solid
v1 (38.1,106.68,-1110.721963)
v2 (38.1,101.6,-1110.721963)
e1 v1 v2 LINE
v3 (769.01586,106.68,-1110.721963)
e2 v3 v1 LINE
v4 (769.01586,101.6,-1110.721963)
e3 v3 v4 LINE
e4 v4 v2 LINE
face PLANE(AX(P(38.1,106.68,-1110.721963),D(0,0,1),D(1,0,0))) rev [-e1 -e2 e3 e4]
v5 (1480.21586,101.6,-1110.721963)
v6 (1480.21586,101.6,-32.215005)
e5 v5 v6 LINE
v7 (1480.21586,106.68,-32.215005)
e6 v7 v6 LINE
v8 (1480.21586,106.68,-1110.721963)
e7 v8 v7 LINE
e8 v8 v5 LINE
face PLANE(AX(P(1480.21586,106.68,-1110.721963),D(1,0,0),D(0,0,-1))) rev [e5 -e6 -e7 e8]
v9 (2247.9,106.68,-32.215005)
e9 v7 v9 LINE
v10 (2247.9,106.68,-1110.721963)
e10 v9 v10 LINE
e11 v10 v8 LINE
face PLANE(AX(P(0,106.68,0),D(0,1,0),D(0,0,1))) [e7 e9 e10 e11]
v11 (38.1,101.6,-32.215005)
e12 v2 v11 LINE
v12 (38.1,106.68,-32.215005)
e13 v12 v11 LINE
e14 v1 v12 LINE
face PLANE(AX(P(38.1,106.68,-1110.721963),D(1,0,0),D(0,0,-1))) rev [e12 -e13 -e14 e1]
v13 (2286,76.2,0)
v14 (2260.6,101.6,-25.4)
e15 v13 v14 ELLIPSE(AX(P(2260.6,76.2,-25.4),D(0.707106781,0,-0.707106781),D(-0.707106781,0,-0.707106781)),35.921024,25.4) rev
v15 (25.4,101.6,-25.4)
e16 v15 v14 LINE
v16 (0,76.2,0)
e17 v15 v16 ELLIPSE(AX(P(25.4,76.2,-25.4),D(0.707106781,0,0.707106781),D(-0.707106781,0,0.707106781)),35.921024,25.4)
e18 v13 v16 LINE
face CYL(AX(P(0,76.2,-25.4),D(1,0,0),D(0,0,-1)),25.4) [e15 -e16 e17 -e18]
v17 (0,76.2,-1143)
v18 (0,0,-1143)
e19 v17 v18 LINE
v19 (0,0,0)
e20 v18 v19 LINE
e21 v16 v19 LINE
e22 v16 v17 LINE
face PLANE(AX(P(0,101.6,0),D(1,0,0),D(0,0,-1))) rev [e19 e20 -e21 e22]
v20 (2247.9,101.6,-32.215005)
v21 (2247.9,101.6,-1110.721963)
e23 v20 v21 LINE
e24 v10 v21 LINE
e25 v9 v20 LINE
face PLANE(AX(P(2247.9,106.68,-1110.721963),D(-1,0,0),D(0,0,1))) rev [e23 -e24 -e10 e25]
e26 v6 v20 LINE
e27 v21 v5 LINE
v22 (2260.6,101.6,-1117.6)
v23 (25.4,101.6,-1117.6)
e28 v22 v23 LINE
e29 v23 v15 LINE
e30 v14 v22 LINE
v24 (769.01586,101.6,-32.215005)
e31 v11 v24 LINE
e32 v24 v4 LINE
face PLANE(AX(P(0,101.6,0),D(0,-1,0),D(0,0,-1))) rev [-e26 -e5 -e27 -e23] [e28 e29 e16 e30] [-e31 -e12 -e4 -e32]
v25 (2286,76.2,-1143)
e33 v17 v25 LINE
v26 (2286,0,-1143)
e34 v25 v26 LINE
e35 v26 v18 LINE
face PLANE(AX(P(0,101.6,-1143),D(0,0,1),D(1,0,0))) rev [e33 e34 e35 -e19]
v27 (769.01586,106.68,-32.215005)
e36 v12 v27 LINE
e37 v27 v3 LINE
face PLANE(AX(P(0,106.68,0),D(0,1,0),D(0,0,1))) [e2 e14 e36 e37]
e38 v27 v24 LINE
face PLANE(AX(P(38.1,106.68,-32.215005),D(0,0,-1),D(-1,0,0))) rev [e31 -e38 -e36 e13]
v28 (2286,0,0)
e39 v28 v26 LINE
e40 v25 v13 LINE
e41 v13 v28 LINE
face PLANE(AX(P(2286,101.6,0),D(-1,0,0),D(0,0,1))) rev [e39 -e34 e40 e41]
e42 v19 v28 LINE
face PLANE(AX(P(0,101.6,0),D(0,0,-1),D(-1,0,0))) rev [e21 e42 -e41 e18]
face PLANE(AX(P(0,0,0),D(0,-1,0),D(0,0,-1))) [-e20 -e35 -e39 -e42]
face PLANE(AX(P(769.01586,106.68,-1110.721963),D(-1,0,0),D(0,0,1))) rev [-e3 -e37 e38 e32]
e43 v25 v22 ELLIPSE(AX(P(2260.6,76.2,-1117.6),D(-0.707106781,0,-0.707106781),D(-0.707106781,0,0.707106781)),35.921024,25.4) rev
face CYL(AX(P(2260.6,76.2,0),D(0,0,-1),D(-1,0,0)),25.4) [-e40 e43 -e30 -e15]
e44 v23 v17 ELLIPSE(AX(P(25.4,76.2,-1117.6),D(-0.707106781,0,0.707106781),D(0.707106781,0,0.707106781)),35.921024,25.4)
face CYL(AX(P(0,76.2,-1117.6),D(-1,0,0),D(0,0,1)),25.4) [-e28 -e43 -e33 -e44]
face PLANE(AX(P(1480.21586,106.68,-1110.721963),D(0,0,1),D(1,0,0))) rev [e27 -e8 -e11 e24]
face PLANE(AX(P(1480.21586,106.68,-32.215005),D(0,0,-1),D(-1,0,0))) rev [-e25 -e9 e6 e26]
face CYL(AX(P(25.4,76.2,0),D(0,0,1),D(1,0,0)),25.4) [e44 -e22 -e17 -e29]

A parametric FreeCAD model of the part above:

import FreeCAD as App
import Part
import Sketcher
Q = App.Units.Quantity


def edges_at(feature, points):
    """Names of the edges that pass closest to the given points."""
    edges = feature.Shape.Edges
    near = lambda p: min(range(len(edges)), key=lambda i: edges[i].distToShape(Part.Vertex(*p))[0])
    return sorted({f"Edge{near(p) + 1}" for p in points})

doc = App.newDocument("Part")
body = doc.addObject("PartDesign::Body", "Body")

# Sketch on XZ plane
sketch1 = body.newObject("Sketcher::SketchObject", "Sketch")
sketch1.AttachmentSupport = (doc.getObject("XZ_Plane"), [""])
sketch1.MapMode = "FlatFace"
sketch1.addGeometry([
    Part.LineSegment(App.Vector(0, -1143, 0), App.Vector(0, 0, 0)),
    Part.LineSegment(App.Vector(0, 0, 0), App.Vector(2286, 0, 0)),
    Part.LineSegment(App.Vector(2286, 0, 0), App.Vector(2286, -1143, 0)),
    Part.LineSegment(App.Vector(2286, -1143, 0), App.Vector(0, -1143, 0)),
], False)
sketch1.addConstraint([
    Sketcher.Constraint("Coincident", 0, 2, 1, 1),
    Sketcher.Constraint("Coincident", 1, 2, 2, 1),
    Sketcher.Constraint("Coincident", 2, 2, 3, 1),
    Sketcher.Constraint("Coincident", 3, 2, 0, 1),
    Sketcher.Constraint("Vertical", 0),
    Sketcher.Constraint("Horizontal", 1),
    Sketcher.Constraint("Vertical", 2),
    Sketcher.Constraint("Horizontal", 3),
    Sketcher.Constraint("Coincident", 0, 2, -1, 1),
    Sketcher.Constraint("DistanceX", 1, 1, 1, 2, Q("90 in")),
    Sketcher.Constraint("DistanceY", 0, 1, 0, 2, Q("45 in")),
])
pad1 = body.newObject("PartDesign::Pad", "Pad")
pad1.Profile = sketch1
pad1.Length = Q("4 in")
pad1.Reversed = True

# Sketch on XZ plane
sketch2 = body.newObject("Sketcher::SketchObject", "Sketch001")
sketch2.AttachmentSupport = (doc.getObject("XZ_Plane"), [""])
sketch2.MapMode = "FlatFace"
sketch2.AttachmentOffset = App.Placement(App.Vector(0, 0, -4 * 25.4), App.Rotation())
sketch2.addGeometry([
    Part.LineSegment(App.Vector(38, -1111, 0), App.Vector(38, -32, 0)),  # 0
    Part.LineSegment(App.Vector(38, -32, 0), App.Vector(769, -32, 0)),  # 1
    Part.LineSegment(App.Vector(769, -32, 0), App.Vector(769, -1111, 0)),  # 2
    Part.LineSegment(App.Vector(769, -1111, 0), App.Vector(38, -1111, 0)),  # 3
    Part.LineSegment(App.Vector(1480, -1111, 0), App.Vector(1480, -32, 0)),  # 4
    Part.LineSegment(App.Vector(1480, -32, 0), App.Vector(2248, -32, 0)),  # 5
    Part.LineSegment(App.Vector(2248, -32, 0), App.Vector(2248, -1111, 0)),  # 6
    Part.LineSegment(App.Vector(2248, -1111, 0), App.Vector(1480, -1111, 0)),  # 7
], False)
sketch2.addConstraint([
    Sketcher.Constraint("Coincident", 0, 2, 1, 1),
    Sketcher.Constraint("Coincident", 1, 2, 2, 1),
    Sketcher.Constraint("Coincident", 2, 2, 3, 1),
    Sketcher.Constraint("Coincident", 3, 2, 0, 1),
    Sketcher.Constraint("Coincident", 4, 2, 5, 1),
    Sketcher.Constraint("Coincident", 5, 2, 6, 1),
    Sketcher.Constraint("Coincident", 6, 2, 7, 1),
    Sketcher.Constraint("Coincident", 7, 2, 4, 1),
    Sketcher.Constraint("Vertical", 0),
    Sketcher.Constraint("Horizontal", 1),
    Sketcher.Constraint("Vertical", 2),
    Sketcher.Constraint("Horizontal", 3),
    Sketcher.Constraint("Vertical", 4),
    Sketcher.Constraint("Horizontal", 5),
    Sketcher.Constraint("Vertical", 6),
    Sketcher.Constraint("Horizontal", 7),
    Sketcher.Constraint("Horizontal", 1, 2, 4, 2),
    Sketcher.Constraint("Horizontal", 3, 2, 6, 2),
    Sketcher.Constraint("DistanceX", 1, 2, 4, 2, Q("28 in")),
    Sketcher.Constraint("DistanceX", 0, 2, 5, 2, Q("87 in")),
    Sketcher.Constraint("DistanceX", -1, 1, 0, 2, Q("1.5 in")),
    Sketcher.Constraint("DistanceX", 1, 1, 1, 2, Q("730.91586 mm")),
    Sketcher.Constraint("DistanceY", 0, 1, 0, 2, Q("1078.506958 mm")),
    Sketcher.Constraint("DistanceY", 0, 2, -1, 1, Q("32.215005 mm")),
])
pocket1 = body.newObject("PartDesign::Pocket", "Pocket")
pocket1.Profile = sketch2
pocket1.Length = Q("3.5 in")
pocket1.Reversed = True

# Sketch on XZ plane
sketch3 = body.newObject("Sketcher::SketchObject", "Sketch002")
sketch3.AttachmentSupport = (doc.getObject("XZ_Plane"), [""])
sketch3.MapMode = "FlatFace"
sketch3.AttachmentOffset = App.Placement(App.Vector(0, 0, -0.5 * 25.4), App.Rotation())
sketch3.addGeometry([
    Part.LineSegment(App.Vector(38, -1111, 0), App.Vector(38, -32, 0)),  # 0
    Part.LineSegment(App.Vector(38, -32, 0), App.Vector(769, -32, 0)),  # 1
    Part.LineSegment(App.Vector(769, -32, 0), App.Vector(769, -1111, 0)),  # 2
    Part.LineSegment(App.Vector(769, -1111, 0), App.Vector(38, -1111, 0)),  # 3
    Part.LineSegment(App.Vector(1480, -1111, 0), App.Vector(1480, -32, 0)),  # 4
    Part.LineSegment(App.Vector(1480, -32, 0), App.Vector(2248, -32, 0)),  # 5
    Part.LineSegment(App.Vector(2248, -32, 0), App.Vector(2248, -1111, 0)),  # 6
    Part.LineSegment(App.Vector(2248, -1111, 0), App.Vector(1480, -1111, 0)),  # 7
], False)
sketch3.addConstraint([
    Sketcher.Constraint("Coincident", 0, 2, 1, 1),
    Sketcher.Constraint("Coincident", 1, 2, 2, 1),
    Sketcher.Constraint("Coincident", 2, 2, 3, 1),
    Sketcher.Constraint("Coincident", 3, 2, 0, 1),
    Sketcher.Constraint("Coincident", 4, 2, 5, 1),
    Sketcher.Constraint("Coincident", 5, 2, 6, 1),
    Sketcher.Constraint("Coincident", 6, 2, 7, 1),
    Sketcher.Constraint("Coincident", 7, 2, 4, 1),
    Sketcher.Constraint("Vertical", 0),
    Sketcher.Constraint("Horizontal", 1),
    Sketcher.Constraint("Vertical", 2),
    Sketcher.Constraint("Horizontal", 3),
    Sketcher.Constraint("Vertical", 4),
    Sketcher.Constraint("Horizontal", 5),
    Sketcher.Constraint("Vertical", 6),
    Sketcher.Constraint("Horizontal", 7),
    Sketcher.Constraint("Horizontal", 1, 2, 4, 2),
    Sketcher.Constraint("Horizontal", 3, 2, 6, 2),
    Sketcher.Constraint("DistanceX", 1, 2, 4, 2, Q("28 in")),
    Sketcher.Constraint("DistanceX", 0, 2, 5, 2, Q("87 in")),
    Sketcher.Constraint("DistanceX", -1, 1, 0, 2, Q("1.5 in")),
    Sketcher.Constraint("DistanceX", 1, 1, 1, 2, Q("730.91586 mm")),
    Sketcher.Constraint("DistanceY", 0, 1, 0, 2, Q("1078.506958 mm")),
    Sketcher.Constraint("DistanceY", 0, 2, -1, 1, Q("32.215005 mm")),
])
pad2 = body.newObject("PartDesign::Pad", "Pad001")
pad2.Profile = sketch3
pad2.Length = Q("3.7 in")
pad2.Reversed = True
doc.recompute()

fillet = body.newObject("PartDesign::Fillet", "Fillet")
fillet.Base = (pad2, edges_at(pad2, [
    (2286, 101.6, -571.5),
    (1143, 101.6, -1143),
    (0, 101.6, -571.5),
    (1143, 101.6, 0),
]))
fillet.Radius = Q("1 in")

doc.recompute()
